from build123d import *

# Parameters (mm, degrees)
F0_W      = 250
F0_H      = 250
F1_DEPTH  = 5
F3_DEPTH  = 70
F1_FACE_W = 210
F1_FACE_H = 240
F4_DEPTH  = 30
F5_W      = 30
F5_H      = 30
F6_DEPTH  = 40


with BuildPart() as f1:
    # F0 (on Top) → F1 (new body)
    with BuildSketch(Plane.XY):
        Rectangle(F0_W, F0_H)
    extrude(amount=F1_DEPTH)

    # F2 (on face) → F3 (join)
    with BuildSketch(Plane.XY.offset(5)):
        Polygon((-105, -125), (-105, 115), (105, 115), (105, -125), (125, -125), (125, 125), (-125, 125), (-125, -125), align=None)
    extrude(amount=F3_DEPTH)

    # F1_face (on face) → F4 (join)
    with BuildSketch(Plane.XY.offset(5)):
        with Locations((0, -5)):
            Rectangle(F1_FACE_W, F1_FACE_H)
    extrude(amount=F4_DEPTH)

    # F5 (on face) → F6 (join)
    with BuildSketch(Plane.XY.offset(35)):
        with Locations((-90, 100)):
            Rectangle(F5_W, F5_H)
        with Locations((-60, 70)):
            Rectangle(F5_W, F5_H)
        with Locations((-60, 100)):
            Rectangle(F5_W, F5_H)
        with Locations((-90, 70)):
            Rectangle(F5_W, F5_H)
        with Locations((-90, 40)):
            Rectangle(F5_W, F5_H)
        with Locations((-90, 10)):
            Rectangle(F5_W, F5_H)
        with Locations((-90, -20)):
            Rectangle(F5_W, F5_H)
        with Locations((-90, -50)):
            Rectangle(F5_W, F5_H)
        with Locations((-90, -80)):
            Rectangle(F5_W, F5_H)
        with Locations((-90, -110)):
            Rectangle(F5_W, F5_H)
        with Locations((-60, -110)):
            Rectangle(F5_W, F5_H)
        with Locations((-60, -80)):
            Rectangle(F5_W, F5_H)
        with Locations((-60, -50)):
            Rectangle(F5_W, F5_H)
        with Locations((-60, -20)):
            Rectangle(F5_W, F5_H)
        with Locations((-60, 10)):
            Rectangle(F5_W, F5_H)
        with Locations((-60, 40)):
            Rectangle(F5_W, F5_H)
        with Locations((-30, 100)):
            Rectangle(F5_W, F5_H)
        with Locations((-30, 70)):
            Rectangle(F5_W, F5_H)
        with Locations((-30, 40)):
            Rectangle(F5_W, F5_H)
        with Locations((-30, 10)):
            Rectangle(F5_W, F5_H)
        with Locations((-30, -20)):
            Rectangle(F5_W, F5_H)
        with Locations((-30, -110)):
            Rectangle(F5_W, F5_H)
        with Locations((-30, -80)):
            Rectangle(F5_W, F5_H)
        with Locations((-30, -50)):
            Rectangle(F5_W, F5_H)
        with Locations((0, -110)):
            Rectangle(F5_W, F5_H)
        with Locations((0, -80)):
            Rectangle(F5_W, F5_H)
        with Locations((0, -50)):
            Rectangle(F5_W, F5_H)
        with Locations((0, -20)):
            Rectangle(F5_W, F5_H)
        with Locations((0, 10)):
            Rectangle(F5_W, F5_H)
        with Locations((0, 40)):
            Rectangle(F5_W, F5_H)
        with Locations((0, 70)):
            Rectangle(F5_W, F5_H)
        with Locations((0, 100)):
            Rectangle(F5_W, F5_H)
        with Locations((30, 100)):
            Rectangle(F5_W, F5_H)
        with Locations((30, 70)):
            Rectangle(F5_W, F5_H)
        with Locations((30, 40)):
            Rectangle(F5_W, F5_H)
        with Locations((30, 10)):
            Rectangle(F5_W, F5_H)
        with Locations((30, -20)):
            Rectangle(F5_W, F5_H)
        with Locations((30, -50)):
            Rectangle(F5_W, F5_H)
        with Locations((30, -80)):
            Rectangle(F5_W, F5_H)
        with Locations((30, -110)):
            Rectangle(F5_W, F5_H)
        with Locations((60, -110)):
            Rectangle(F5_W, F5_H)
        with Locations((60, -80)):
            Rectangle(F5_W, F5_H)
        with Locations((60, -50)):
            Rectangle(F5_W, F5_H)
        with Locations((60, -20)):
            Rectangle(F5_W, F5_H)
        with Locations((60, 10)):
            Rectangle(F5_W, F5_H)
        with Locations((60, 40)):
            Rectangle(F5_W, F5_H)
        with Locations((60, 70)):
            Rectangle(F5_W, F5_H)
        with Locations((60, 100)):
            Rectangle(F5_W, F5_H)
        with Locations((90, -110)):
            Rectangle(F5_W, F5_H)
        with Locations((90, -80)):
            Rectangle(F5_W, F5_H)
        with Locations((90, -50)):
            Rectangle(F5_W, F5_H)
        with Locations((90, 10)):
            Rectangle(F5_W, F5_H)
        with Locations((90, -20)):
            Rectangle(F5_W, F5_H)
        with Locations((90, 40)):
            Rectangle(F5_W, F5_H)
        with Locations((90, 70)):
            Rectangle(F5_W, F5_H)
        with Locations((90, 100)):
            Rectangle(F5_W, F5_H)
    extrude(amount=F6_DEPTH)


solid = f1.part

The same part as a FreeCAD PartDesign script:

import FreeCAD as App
import Part
import Sketcher

V = App.Vector


def add_polygon(sketch, points):
    """Adds a closed chain of lines whose ends are joined by coincident constraints."""
    first, n = sketch.GeometryCount, len(points)
    for a, b in zip(points, points[1:] + points[:1]):
        sketch.addGeometry(Part.LineSegment(App.Vector(*a, 0), App.Vector(*b, 0)), False)
    for i in range(n):
        sketch.addConstraint(Sketcher.Constraint("Coincident", first + i, 2, first + (i + 1) % n, 1))

doc = App.newDocument("Part")
params = doc.addObject("Spreadsheet::Sheet", "Params")
for row, (alias, value) in enumerate([
    ("sketch1_width", "250 mm"),
    ("pad1_length", "5 mm"),
    ("sketch2_width", "210 mm"),
    ("sketch2_width2", "20 mm"),
    ("sketch2_height", "240 mm"),
    ("pad2_length", "70 mm"),
    ("sketch3_width", "210 mm"),
    ("sketch3_height", "240 mm"),
    ("pad3_length", "30 mm"),
    ("sketch4_width", "210 mm"),
    ("sketch4_height", "240 mm"),
    ("pad4_length", "40 mm"),
], start=1):
    params.set(f"A{row}", alias)
    params.set(f"B{row}", "=" + value)
    params.setAlias(f"B{row}", alias)

body = doc.addObject("PartDesign::Body", "Body")

# Sketch on XY plane
sketch1 = body.newObject("Sketcher::SketchObject", "Sketch")
sketch1.AttachmentSupport = (doc.getObject("XY_Plane"), [""])
sketch1.MapMode = "FlatFace"
add_polygon(sketch1, [(-125, 125), (-125, -125), (125, -125), (125, 125)])  # lines 0-3
sketch1.addConstraint(Sketcher.Constraint("Vertical", 0))
sketch1.addConstraint(Sketcher.Constraint("Horizontal", 1))
sketch1.addConstraint(Sketcher.Constraint("Vertical", 2))
sketch1.addConstraint(Sketcher.Constraint("Horizontal", 3))
sketch1.addConstraint(Sketcher.Constraint("Symmetric", 0, 2, 2, 2, -1, 1))
sketch1.addConstraint(Sketcher.Constraint("Equal", 3, 0))
sketch1.addConstraint(Sketcher.Constraint("DistanceX", 1, 1, 1, 2, 250.0))
sketch1.setExpression("Constraints[10]", "Params.sketch1_width")
pad1 = body.newObject("PartDesign::Pad", "Pad")
pad1.Profile = sketch1
pad1.setExpression("Length", "Params.pad1_length")

# Sketch on XY plane
sketch2 = body.newObject("Sketcher::SketchObject", "Sketch001")
sketch2.AttachmentSupport = (doc.getObject("XY_Plane"), [""])
sketch2.MapMode = "FlatFace"
sketch2.AttachmentOffset = App.Placement(V(0, 0, 5), App.Rotation())
add_polygon(sketch2, [(-105, -125), (-105, 115), (105, 115), (105, -125), (125, -125), (125, 125), (-125, 125), (-125, -125)])  # lines 0-7
sketch2.addConstraint(Sketcher.Constraint("Vertical", 0))
sketch2.addConstraint(Sketcher.Constraint("Horizontal", 1))
sketch2.addConstraint(Sketcher.Constraint("Vertical", 2))
sketch2.addConstraint(Sketcher.Constraint("Horizontal", 3))
sketch2.addConstraint(Sketcher.Constraint("Vertical", 4))
sketch2.addConstraint(Sketcher.Constraint("Horizontal", 5))
sketch2.addConstraint(Sketcher.Constraint("Vertical", 6))
sketch2.addConstraint(Sketcher.Constraint("Horizontal", 7))
sketch2.addConstraint(Sketcher.Constraint("Symmetric", 3, 2, 5, 2, -1, 1))
sketch2.addConstraint(Sketcher.Constraint("Symmetric", 2, 2, 7, 2, -2))
sketch2.addConstraint(Sketcher.Constraint("Equal", 5, 4))
sketch2.addConstraint(Sketcher.Constraint("DistanceX", 1, 1, 1, 2, 210.0))
sketch2.addConstraint(Sketcher.Constraint("DistanceX", 3, 1, 3, 2, 20.0))
sketch2.addConstraint(Sketcher.Constraint("DistanceY", 0, 1, 0, 2, 240.0))
sketch2.setExpression("Constraints[19]", "Params.sketch2_width")
sketch2.setExpression("Constraints[20]", "Params.sketch2_width2")
sketch2.setExpression("Constraints[21]", "Params.sketch2_height")
pad2 = body.newObject("PartDesign::Pad", "Pad001")
pad2.Profile = sketch2
pad2.setExpression("Length", "Params.pad2_length")

# Sketch on XY plane
sketch3 = body.newObject("Sketcher::SketchObject", "Sketch002")
sketch3.AttachmentSupport = (doc.getObject("XY_Plane"), [""])
sketch3.MapMode = "FlatFace"
sketch3.AttachmentOffset = App.Placement(V(0, 0, 5), App.Rotation())
add_polygon(sketch3, [(-105, 115), (-105, -125), (105, -125), (105, 115)])  # lines 0-3
sketch3.addConstraint(Sketcher.Constraint("Vertical", 0))
sketch3.addConstraint(Sketcher.Constraint("Horizontal", 1))
sketch3.addConstraint(Sketcher.Constraint("Vertical", 2))
sketch3.addConstraint(Sketcher.Constraint("Horizontal", 3))
sketch3.addConstraint(Sketcher.Constraint("DistanceX", 1, 1, 1, 2, 210.0))
sketch3.addConstraint(Sketcher.Constraint("DistanceY", 0, 2, 0, 1, 240.0))
sketch3.addConstraint(Sketcher.Constraint("DistanceX", 0, 2, -1, 1, 105.0))
sketch3.addConstraint(Sketcher.Constraint("DistanceY", 0, 2, -1, 1, 125.0))
sketch3.setExpression("Constraints[8]", "Params.sketch3_width")
sketch3.setExpression("Constraints[9]", "Params.sketch3_height")
pad3 = body.newObject("PartDesign::Pad", "Pad002")
pad3.Profile = sketch3
pad3.setExpression("Length", "Params.pad3_length")

# Sketch on XY plane
sketch4 = body.newObject("Sketcher::SketchObject", "Sketch003")
sketch4.AttachmentSupport = (doc.getObject("XY_Plane"), [""])
sketch4.MapMode = "FlatFace"
sketch4.AttachmentOffset = App.Placement(V(0, 0, 35), App.Rotation())
add_polygon(sketch4, [(-105, 115), (-105, -125), (105, -125), (105, 115)])  # lines 0-3
sketch4.addConstraint(Sketcher.Constraint("Vertical", 0))
sketch4.addConstraint(Sketcher.Constraint("Horizontal", 1))
sketch4.addConstraint(Sketcher.Constraint("Vertical", 2))
sketch4.addConstraint(Sketcher.Constraint("Horizontal", 3))
sketch4.addConstraint(Sketcher.Constraint("DistanceX", 1, 1, 1, 2, 210.0))
sketch4.addConstraint(Sketcher.Constraint("DistanceY", 0, 2, 0, 1, 240.0))
sketch4.addConstraint(Sketcher.Constraint("DistanceX", 0, 2, -1, 1, 105.0))
sketch4.addConstraint(Sketcher.Constraint("DistanceY", 0, 2, -1, 1, 125.0))
sketch4.setExpression("Constraints[8]", "Params.sketch4_width")
sketch4.setExpression("Constraints[9]", "Params.sketch4_height")
pad4 = body.newObject("PartDesign::Pad", "Pad003")
pad4.Profile = sketch4
pad4.setExpression("Length", "Params.pad4_length")

doc.recompute()
